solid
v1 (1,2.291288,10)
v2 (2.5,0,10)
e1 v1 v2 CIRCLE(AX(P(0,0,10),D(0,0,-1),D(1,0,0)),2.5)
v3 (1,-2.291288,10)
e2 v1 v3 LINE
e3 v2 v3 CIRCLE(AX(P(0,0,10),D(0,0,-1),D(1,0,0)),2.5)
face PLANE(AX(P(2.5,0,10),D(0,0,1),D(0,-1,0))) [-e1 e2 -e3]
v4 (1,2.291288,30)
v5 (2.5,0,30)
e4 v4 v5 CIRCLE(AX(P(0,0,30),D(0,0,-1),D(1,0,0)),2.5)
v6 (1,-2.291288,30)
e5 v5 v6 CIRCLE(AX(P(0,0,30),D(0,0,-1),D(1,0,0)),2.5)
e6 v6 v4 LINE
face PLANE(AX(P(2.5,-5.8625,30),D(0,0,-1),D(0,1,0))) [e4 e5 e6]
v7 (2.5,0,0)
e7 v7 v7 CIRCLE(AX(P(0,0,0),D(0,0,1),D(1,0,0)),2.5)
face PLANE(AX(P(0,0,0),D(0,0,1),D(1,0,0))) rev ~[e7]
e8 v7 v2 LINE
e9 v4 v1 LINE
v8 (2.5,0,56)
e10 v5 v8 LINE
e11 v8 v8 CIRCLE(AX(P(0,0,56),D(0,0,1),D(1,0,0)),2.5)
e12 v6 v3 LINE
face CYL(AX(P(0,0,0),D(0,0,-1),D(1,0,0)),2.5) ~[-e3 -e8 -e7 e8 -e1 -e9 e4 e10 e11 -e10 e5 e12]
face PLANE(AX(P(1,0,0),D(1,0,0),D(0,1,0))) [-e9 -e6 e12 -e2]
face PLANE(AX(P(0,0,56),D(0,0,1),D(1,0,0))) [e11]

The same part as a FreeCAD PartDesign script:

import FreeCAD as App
import Part
import Sketcher


def add_polygon(sketch, points):
    """Adds a closed chain of lines whose ends are joined by coincident constraints."""
    first, n = sketch.GeometryCount, len(points)
    for a, b in zip(points, points[1:] + points[:1]):
        sketch.addGeometry(Part.LineSegment(App.Vector(*a, 0), App.Vector(*b, 0)), False)
    for i in range(n):
        sketch.addConstraint(Sketcher.Constraint("Coincident", first + i, 2, first + (i + 1) % n, 1))

doc = App.newDocument("Part")
body = doc.addObject("PartDesign::Body", "Body")

# Sketch on XY plane
sketch1 = body.newObject("Sketcher::SketchObject", "Sketch")
sketch1.AttachmentSupport = (doc.getObject("XY_Plane"), [""])
sketch1.MapMode = "FlatFace"
sketch1.addGeometry(Part.Circle(App.Vector(0, 0, 0), App.Vector(0, 0, 1), 2.5), False)
sketch1.addConstraint([
    Sketcher.Constraint("Coincident", 0, 3, -1, 1),
    Sketcher.Constraint("Diameter", 0, 5.0),
])
pad1 = body.newObject("PartDesign::Pad", "Pad")
pad1.Profile = sketch1
pad1.Length = 56

# Sketch on YZ plane
sketch2 = body.newObject("Sketcher::SketchObject", "Sketch001")
sketch2.AttachmentSupport = (doc.getObject("YZ_Plane"), [""])
sketch2.MapMode = "FlatFace"
sketch2.AttachmentOffset = App.Placement(App.Vector(0, 0, 2.5), App.Rotation())
add_polygon(sketch2, [(-6, 10), (6, 10), (6, 30), (-6, 30)])  # lines 0-3
sketch2.addConstraint([
    Sketcher.Constraint("Horizontal", 0),
    Sketcher.Constraint("Vertical", 1),
    Sketcher.Constraint("Horizontal", 2),
    Sketcher.Constraint("Vertical", 3),
    Sketcher.Constraint("DistanceY", 1, 1, 1, 2, 20.0),
    Sketcher.Constraint("DistanceY", -1, 1, 0, 2, 10.0),
    Sketcher.Constraint("DistanceX", 0, 1, 0, 2, 11.6802),
    Sketcher.Constraint("DistanceX", -1, 1, 0, 2, 5.8177),
])
pocket1 = body.newObject("PartDesign::Pocket", "Pocket")
pocket1.Profile = sketch2
pocket1.Length = 1.5

doc.recompute()
